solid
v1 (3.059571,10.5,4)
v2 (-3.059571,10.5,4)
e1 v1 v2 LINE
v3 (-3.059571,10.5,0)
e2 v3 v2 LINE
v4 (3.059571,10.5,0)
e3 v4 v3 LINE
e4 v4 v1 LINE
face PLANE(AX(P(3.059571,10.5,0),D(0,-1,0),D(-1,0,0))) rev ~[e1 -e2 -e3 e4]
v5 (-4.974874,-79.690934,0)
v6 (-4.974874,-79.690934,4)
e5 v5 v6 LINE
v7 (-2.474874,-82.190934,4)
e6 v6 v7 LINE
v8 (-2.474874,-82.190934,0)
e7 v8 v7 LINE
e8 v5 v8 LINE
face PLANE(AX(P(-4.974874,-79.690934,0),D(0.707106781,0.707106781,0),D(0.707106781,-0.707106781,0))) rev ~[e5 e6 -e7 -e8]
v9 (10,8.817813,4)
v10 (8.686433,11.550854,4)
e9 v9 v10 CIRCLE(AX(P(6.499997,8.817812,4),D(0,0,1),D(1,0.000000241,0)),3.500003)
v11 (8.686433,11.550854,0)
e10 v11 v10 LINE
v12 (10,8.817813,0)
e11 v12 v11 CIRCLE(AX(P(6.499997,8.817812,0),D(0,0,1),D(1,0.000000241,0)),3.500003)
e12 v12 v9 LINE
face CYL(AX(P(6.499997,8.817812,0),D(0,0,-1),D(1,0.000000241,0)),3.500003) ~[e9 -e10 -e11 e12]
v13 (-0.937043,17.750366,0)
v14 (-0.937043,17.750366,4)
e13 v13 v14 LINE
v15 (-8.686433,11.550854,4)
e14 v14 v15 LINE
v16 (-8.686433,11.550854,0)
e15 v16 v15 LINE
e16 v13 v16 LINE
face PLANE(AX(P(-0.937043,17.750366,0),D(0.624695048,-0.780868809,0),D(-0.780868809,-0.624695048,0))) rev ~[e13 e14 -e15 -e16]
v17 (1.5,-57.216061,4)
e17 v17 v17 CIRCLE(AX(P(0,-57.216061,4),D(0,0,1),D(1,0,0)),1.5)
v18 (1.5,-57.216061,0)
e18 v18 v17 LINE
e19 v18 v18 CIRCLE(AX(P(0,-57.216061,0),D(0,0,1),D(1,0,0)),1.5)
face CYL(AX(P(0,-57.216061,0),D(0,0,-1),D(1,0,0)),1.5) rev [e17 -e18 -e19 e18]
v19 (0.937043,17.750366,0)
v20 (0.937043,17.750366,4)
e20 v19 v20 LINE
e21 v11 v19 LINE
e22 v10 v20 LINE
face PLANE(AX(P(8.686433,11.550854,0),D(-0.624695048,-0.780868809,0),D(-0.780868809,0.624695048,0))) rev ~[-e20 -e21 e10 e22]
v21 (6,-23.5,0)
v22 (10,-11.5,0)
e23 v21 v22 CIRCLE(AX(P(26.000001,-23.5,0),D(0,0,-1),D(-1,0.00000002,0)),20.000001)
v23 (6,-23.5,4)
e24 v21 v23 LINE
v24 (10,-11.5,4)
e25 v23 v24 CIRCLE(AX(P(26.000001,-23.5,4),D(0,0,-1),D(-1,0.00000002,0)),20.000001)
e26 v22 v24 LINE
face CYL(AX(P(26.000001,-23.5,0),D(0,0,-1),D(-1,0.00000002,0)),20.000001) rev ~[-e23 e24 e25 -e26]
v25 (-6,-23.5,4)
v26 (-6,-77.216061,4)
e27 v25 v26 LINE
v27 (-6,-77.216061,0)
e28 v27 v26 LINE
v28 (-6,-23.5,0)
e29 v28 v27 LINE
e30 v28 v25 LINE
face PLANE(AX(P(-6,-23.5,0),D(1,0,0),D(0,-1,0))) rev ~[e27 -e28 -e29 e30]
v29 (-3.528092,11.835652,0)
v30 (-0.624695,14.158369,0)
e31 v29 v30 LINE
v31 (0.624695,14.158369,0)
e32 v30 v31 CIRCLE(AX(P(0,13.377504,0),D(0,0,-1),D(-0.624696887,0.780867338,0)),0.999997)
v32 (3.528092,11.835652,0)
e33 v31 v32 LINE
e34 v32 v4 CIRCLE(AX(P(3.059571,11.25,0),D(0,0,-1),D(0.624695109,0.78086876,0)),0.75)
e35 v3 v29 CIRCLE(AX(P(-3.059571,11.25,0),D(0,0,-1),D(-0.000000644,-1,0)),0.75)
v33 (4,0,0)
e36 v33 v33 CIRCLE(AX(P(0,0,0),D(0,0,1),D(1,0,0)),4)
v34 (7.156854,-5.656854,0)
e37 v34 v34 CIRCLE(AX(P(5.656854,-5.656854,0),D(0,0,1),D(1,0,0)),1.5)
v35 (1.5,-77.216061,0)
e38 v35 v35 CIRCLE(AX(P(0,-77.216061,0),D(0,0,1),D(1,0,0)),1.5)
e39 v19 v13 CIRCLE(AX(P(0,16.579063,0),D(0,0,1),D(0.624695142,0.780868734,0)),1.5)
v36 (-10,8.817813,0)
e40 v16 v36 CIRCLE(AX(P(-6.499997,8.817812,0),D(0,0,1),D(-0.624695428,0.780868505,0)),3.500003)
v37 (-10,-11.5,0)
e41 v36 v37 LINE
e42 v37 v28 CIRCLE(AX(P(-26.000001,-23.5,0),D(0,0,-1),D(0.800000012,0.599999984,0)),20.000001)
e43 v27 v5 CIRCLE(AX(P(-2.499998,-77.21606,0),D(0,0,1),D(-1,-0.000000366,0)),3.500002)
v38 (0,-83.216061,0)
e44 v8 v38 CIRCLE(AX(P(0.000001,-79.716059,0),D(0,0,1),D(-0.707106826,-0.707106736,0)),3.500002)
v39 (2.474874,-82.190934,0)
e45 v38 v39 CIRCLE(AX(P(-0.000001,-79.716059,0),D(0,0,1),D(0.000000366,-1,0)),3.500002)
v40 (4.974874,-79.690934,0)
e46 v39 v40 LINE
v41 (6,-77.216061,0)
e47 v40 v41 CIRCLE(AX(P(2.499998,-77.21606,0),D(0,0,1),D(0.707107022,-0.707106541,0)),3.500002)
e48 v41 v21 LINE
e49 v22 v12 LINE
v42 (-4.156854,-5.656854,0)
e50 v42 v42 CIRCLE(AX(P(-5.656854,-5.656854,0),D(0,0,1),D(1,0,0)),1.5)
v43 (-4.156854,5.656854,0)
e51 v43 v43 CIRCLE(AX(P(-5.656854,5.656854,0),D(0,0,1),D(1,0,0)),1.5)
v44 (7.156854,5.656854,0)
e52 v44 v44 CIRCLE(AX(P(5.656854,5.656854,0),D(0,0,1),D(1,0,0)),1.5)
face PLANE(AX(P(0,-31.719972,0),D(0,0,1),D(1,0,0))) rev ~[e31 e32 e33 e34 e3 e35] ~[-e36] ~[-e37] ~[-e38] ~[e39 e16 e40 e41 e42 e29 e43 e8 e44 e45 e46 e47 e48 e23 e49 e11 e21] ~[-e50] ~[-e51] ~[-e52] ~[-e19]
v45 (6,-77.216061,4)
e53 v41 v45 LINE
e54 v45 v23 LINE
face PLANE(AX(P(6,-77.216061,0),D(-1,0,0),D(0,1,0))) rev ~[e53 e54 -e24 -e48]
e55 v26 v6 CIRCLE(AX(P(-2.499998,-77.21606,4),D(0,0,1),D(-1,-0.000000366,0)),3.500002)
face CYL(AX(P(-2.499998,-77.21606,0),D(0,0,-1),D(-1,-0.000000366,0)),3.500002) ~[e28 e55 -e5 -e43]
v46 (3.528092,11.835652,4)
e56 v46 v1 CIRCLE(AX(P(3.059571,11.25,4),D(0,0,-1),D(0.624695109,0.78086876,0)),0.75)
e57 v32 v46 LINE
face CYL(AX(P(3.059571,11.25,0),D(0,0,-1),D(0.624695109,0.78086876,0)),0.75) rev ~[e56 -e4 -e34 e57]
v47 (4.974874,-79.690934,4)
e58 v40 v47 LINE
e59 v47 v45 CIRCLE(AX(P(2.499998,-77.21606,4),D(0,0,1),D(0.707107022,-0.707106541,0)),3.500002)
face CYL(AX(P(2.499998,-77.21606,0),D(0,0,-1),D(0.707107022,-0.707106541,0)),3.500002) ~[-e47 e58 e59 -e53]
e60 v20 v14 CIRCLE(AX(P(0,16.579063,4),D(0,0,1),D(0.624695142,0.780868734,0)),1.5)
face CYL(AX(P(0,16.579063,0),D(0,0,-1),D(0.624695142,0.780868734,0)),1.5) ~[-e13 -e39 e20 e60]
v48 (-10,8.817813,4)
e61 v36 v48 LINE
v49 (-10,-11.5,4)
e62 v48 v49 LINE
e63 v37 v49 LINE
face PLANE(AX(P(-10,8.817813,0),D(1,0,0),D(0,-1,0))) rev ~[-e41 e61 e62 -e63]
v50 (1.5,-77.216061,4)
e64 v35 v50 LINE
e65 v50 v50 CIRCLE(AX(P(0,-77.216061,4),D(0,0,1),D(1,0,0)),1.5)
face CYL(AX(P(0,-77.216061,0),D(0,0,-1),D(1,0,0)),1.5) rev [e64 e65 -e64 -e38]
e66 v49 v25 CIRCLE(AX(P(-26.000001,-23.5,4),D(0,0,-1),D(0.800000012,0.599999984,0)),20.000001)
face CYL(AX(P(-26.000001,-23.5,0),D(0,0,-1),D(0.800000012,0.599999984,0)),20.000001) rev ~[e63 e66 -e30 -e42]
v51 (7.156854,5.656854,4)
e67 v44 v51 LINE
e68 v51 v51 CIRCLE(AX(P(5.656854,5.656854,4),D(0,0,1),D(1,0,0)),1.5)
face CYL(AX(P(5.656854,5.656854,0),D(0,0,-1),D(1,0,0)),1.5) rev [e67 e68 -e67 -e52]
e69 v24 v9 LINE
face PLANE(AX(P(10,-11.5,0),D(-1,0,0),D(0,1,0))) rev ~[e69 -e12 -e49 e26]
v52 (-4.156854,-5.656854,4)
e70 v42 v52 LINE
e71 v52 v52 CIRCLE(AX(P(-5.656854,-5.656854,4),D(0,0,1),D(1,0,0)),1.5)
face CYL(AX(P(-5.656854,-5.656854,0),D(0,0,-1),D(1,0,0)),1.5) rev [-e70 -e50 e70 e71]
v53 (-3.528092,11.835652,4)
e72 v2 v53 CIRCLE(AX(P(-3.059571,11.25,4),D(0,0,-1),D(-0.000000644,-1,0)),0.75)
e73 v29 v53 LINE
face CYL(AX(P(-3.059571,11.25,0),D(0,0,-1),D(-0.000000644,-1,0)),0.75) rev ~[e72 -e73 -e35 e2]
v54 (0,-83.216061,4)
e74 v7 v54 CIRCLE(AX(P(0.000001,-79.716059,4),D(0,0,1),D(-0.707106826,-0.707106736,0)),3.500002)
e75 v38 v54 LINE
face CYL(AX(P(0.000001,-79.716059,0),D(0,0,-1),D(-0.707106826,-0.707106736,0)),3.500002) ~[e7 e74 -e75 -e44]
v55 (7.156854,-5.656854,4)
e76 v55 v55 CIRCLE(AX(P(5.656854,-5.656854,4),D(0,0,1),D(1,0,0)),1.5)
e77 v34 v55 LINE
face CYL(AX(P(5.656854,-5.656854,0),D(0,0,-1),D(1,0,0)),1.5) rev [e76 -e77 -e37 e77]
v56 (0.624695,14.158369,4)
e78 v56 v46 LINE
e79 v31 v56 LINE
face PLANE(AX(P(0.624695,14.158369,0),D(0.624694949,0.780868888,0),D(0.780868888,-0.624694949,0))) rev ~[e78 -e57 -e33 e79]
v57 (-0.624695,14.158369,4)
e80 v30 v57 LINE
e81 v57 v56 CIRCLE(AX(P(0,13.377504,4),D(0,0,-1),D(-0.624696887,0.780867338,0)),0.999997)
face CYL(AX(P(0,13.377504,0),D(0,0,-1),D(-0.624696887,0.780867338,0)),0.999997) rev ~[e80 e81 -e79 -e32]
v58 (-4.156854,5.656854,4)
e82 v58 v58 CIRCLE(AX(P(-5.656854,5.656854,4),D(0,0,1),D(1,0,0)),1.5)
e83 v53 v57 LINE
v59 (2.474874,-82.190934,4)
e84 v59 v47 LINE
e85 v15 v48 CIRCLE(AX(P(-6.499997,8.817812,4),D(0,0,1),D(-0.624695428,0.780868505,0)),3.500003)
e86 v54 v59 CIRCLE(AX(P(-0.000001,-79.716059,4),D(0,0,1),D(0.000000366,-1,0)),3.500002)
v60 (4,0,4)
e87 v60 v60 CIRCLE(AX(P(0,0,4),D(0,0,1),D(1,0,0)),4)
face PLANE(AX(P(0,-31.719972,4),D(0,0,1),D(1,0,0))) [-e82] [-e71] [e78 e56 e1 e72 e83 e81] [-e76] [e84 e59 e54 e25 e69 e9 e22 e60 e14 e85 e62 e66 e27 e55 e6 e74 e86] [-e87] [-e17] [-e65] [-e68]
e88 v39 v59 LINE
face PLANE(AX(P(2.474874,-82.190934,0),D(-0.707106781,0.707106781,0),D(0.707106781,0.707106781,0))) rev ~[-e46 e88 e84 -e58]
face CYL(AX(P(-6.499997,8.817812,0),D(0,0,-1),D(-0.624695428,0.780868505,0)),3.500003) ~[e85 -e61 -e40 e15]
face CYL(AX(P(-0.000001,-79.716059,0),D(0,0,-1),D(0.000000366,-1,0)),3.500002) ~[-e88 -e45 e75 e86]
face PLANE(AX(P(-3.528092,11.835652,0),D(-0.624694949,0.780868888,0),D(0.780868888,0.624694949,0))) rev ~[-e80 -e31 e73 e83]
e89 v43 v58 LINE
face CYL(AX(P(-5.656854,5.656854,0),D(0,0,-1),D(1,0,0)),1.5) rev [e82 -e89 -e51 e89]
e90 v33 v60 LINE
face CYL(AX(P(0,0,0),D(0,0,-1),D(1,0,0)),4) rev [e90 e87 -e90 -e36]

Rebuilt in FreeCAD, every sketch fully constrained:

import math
import FreeCAD as App
import Part
import Sketcher

V = App.Vector

doc = App.newDocument("Part")
body = doc.addObject("PartDesign::Body", "Body")

sketch1 = body.newObject("Sketcher::SketchObject", "Sketch")
sketch1.AttachmentSupport = (doc.getObject("XY_Plane"), [""])
sketch1.MapMode = "FlatFace"
sketch1.addGeometry([
    Part.LineSegment(V(6, -77.2, 0), V(6, -23.5, 0)),
    Part.ArcOfCircle(Part.Circle(V(26, -23.5, 0), V(0, 0, 1), 20), math.radians(143), math.radians(180)),
    Part.LineSegment(V(10, -11.5, 0), V(10, 8.8, 0)),
    Part.ArcOfCircle(Part.Circle(V(6.5, 8.8, 0), V(0, 0, 1), 3.5), math.radians(0), math.radians(51)),
    Part.LineSegment(V(8.7, 11.6, 0), V(0.9, 17.8, 0)),
    Part.ArcOfCircle(Part.Circle(V(0, 16.6, 0), V(0, 0, 1), 1.5), math.radians(51), math.radians(129)),
    Part.LineSegment(V(-0.9, 17.8, 0), V(-8.7, 11.6, 0)),
    Part.ArcOfCircle(Part.Circle(V(-6.5, 8.8, 0), V(0, 0, 1), 3.5), math.radians(129), math.radians(180)),
    Part.LineSegment(V(-10, 8.8, 0), V(-10, -11.5, 0)),
    Part.ArcOfCircle(Part.Circle(V(-26, -23.5, 0), V(0, 0, 1), 20), math.radians(0), math.radians(37)),
    Part.LineSegment(V(-6, -23.5, 0), V(-6, -77.2, 0)),
    Part.ArcOfCircle(Part.Circle(V(-2.5, -77.2, 0), V(0, 0, 1), 3.5), math.radians(-180), math.radians(-135)),
    Part.LineSegment(V(-5, -79.7, 0), V(-2.5, -82.2, 0)),
    Part.ArcOfCircle(Part.Circle(V(0, -79.7, 0), V(0, 0, 1), 3.5), math.radians(-135), math.radians(-90)),
    Part.ArcOfCircle(Part.Circle(V(0, -79.7, 0), V(0, 0, 1), 3.5), math.radians(-90), math.radians(-45)),
    Part.LineSegment(V(2.5, -82.2, 0), V(5, -79.7, 0)),
    Part.ArcOfCircle(Part.Circle(V(2.5, -77.2, 0), V(0, 0, 1), 3.5), math.radians(-45), math.radians(0)),
    Part.Circle(V(0, -77.2, 0), V(0, 0, 1), 1.5),
    Part.Circle(V(0, -57.2, 0), V(0, 0, 1), 1.5),
    Part.Circle(V(-5.7, -5.7, 0), V(0, 0, 1), 1.5),
    Part.Circle(V(-5.7, 5.7, 0), V(0, 0, 1), 1.5),
    Part.Circle(V(0, 0, 0), V(0, 0, 1), 4),
    Part.ArcOfCircle(Part.Circle(V(3.1, 11.3, 0), V(0, 0, 1), 0.8), math.radians(-90), math.radians(51)),
    Part.LineSegment(V(3.1, 10.5, 0), V(-3.1, 10.5, 0)),
    Part.ArcOfCircle(Part.Circle(V(-3.1, 11.3, 0), V(0, 0, 1), 0.8), math.radians(129), math.radians(270)),
    Part.LineSegment(V(-3.5, 11.8, 0), V(-0.6, 14.2, 0)),
    Part.ArcOfCircle(Part.Circle(V(0, 13.4, 0), V(0, 0, 1), 1), math.radians(51), math.radians(129)),
    Part.LineSegment(V(0.6, 14.2, 0), V(3.5, 11.8, 0)),
    Part.Circle(V(5.7, -5.7, 0), V(0, 0, 1), 1.5),
    Part.Circle(V(5.7, 5.7, 0), V(0, 0, 1), 1.5),
], False)
sketch1.addConstraint([
    Sketcher.Constraint("Tangent", 0, 2, 1, 2),
    Sketcher.Constraint("Coincident", 1, 1, 2, 1),
    Sketcher.Constraint("Tangent", 2, 2, 3, 1),
    Sketcher.Constraint("Tangent", 3, 2, 4, 1),
    Sketcher.Constraint("Tangent", 4, 2, 5, 1),
    Sketcher.Constraint("Tangent", 5, 2, 6, 1),
    Sketcher.Constraint("Tangent", 6, 2, 7, 1),
    Sketcher.Constraint("Tangent", 7, 2, 8, 1),
    Sketcher.Constraint("Coincident", 8, 2, 9, 2),
    Sketcher.Constraint("Tangent", 9, 1, 10, 1),
    Sketcher.Constraint("Tangent", 10, 2, 11, 1),
    Sketcher.Constraint("Tangent", 11, 2, 12, 1),
    Sketcher.Constraint("Tangent", 12, 2, 13, 1),
    Sketcher.Constraint("Tangent", 13, 2, 14, 1),
    Sketcher.Constraint("Tangent", 14, 2, 15, 1),
    Sketcher.Constraint("Tangent", 15, 2, 16, 1),
    Sketcher.Constraint("Tangent", 16, 2, 0, 1),
    Sketcher.Constraint("Tangent", 22, 1, 23, 1),
    Sketcher.Constraint("Tangent", 23, 2, 24, 2),
    Sketcher.Constraint("Tangent", 24, 1, 25, 1),
    Sketcher.Constraint("Coincident", 25, 2, 26, 2),
    Sketcher.Constraint("Coincident", 26, 1, 27, 1),
    Sketcher.Constraint("Tangent", 27, 2, 22, 2),
    Sketcher.Constraint("Vertical", 0),
    Sketcher.Constraint("Vertical", 2),
    Sketcher.Constraint("Vertical", 8),
    Sketcher.Constraint("Vertical", 10),
    Sketcher.Constraint("Horizontal", 23),
    Sketcher.Constraint("Coincident", 21, 3, -1, 1),
    Sketcher.Constraint("Equal", 3, 7),
    Sketcher.Constraint("Equal", 1, 9),
    Sketcher.Constraint("Equal", 7, 11),
    Sketcher.Constraint("Equal", 11, 13),
    Sketcher.Constraint("Equal", 13, 14),
    Sketcher.Constraint("Equal", 14, 16),
    Sketcher.Constraint("Equal", 5, 17),
    Sketcher.Constraint("Equal", 17, 18),
    Sketcher.Constraint("Equal", 18, 19),
    Sketcher.Constraint("Equal", 19, 20),
    Sketcher.Constraint("Equal", 22, 24),
    Sketcher.Constraint("Equal", 20, 28),
    Sketcher.Constraint("Equal", 28, 29),
    Sketcher.Constraint("Symmetric", 20, 3, 28, 3, -1, 1),
    Sketcher.Constraint("Symmetric", 19, 3, 29, 3, -1, 1),
    Sketcher.Constraint("Symmetric", 3, 3, 7, 3, -2),
    Sketcher.Constraint("Symmetric", 1, 3, 9, 3, -2),
    Sketcher.Constraint("Symmetric", 19, 3, 28, 3, -2),
    Sketcher.Constraint("Symmetric", 12, 2, 14, 2, -2),
    Sketcher.Constraint("Symmetric", 25, 2, 26, 1, -2),
    Sketcher.Constraint("PointOnObject", 5, 3, -2),
    Sketcher.Constraint("PointOnObject", 17, 3, -2),
    Sketcher.Constraint("PointOnObject", 18, 3, -2),
    Sketcher.Constraint("PointOnObject", 13, 2, -2),
    Sketcher.Constraint("Perpendicular", 12, 15),
    Sketcher.Constraint("Parallel", 6, 25),
    Sketcher.Constraint("Parallel", 4, 27),
    Sketcher.Constraint("Horizontal", 16, 3, 17, 3),
    Sketcher.Constraint("Diameter", 17, 3.0),
    Sketcher.Constraint("Diameter", 21, 8.0),
    Sketcher.Constraint("Radius", 1, 20.000001),
    Sketcher.Constraint("Radius", 11, 3.500002),
    Sketcher.Constraint("Radius", 22, 0.75),
    Sketcher.Constraint("DistanceX", -1, 1, 1, 3, 26.000001),
    Sketcher.Constraint("DistanceX", -1, 1, 1, 1, 10.0),
    Sketcher.Constraint("DistanceY", 17, 3, 18, 3, 20.0),
    Sketcher.Constraint("DistanceY", 1, 3, -1, 1, 23.5),
    Sketcher.Constraint("DistanceY", -1, 1, 22, 1, 10.5),
    Sketcher.Constraint("Radius", 26, 0.999997),
    Sketcher.Constraint("DistanceY", 29, 3, 3, 2, 5.894),
    Sketcher.Constraint("DistanceY", 0, 1, 0, 2, 53.716061),
    Sketcher.Constraint("Distance", 4, 9.924061),
    Sketcher.Constraint("Distance", 25, 3.718162),
    Sketcher.Constraint("DistanceX", 23, 2, 23, 1, 6.119142),
    Sketcher.Constraint("DistanceY", 2, 1, 2, 2, 20.317813),
    Sketcher.Constraint("DistanceX", 19, 3, 3, 3, 12.156851),
])
pad1 = body.newObject("PartDesign::Pad", "Pad")
pad1.Profile = sketch1
pad1.Length = 4

doc.recompute()
